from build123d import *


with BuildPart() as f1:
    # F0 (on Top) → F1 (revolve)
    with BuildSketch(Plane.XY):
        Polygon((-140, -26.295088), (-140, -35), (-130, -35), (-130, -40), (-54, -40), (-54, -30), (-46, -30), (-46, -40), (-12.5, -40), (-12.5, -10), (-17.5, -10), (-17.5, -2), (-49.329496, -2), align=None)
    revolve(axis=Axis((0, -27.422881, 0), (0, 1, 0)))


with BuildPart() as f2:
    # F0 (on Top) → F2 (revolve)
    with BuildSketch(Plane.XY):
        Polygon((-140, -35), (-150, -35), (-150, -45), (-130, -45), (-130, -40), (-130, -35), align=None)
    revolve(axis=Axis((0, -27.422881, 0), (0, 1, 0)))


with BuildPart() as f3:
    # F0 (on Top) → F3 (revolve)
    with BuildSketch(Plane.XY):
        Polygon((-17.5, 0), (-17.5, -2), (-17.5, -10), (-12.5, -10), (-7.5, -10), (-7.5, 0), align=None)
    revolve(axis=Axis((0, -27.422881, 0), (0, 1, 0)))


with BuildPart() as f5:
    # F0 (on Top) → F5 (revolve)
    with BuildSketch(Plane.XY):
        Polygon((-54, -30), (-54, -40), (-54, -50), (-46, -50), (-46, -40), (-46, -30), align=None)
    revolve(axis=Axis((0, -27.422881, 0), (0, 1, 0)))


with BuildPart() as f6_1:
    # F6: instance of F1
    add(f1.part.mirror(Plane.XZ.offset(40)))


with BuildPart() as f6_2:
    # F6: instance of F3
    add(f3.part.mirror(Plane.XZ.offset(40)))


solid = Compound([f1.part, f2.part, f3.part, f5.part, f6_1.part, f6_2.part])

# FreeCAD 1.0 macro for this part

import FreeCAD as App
import Part
import Sketcher
Q = App.Units.Quantity


def add_polygon(sketch, points):
    """Adds a closed chain of lines whose ends are joined by coincident constraints."""
    first, n = sketch.GeometryCount, len(points)
    for a, b in zip(points, points[1:] + points[:1]):
        sketch.addGeometry(Part.LineSegment(App.Vector(*a, 0), App.Vector(*b, 0)), False)
    for i in range(n):
        sketch.addConstraint(Sketcher.Constraint("Coincident", first + i, 2, first + (i + 1) % n, 1))

doc = App.newDocument("Part")
body = doc.addObject("PartDesign::Body", "Body")

# Sketch on XY plane
sketch1 = doc.addObject("Sketcher::SketchObject", "Sketch")
body.addObject(sketch1)
sketch1.AttachmentSupport = (doc.XY_Plane, [""])
sketch1.MapMode = "FlatFace"
add_polygon(sketch1, [(-140, -26), (-140, -35), (-130, -35), (-130, -40), (-54, -40), (-54, -30), (-46, -30), (-46, -40), (-12, -40), (-12, -10), (-18, -10), (-18, -2), (-49, -2)])  # lines 0-12
sketch1.addConstraint([
    Sketcher.Constraint("Vertical", 0),
    Sketcher.Constraint("Horizontal", 1),
    Sketcher.Constraint("Vertical", 2),
    Sketcher.Constraint("Horizontal", 3),
    Sketcher.Constraint("Vertical", 4),
    Sketcher.Constraint("Horizontal", 5),
    Sketcher.Constraint("Vertical", 6),
    Sketcher.Constraint("Horizontal", 7),
    Sketcher.Constraint("Vertical", 8),
    Sketcher.Constraint("Horizontal", 9),
    Sketcher.Constraint("Vertical", 10),
    Sketcher.Constraint("Horizontal", 11),
    Sketcher.Constraint("Horizontal", 3, 2, 6, 2),
    Sketcher.Constraint("Equal", 9, 2),
    Sketcher.Constraint("Equal", 1, 4),
    Sketcher.Constraint("Equal", 5, 10),
    Sketcher.Constraint("DistanceX", 1, 1, 1, 2, Q("10 mm")),
    Sketcher.Constraint("DistanceX", 3, 1, 3, 2, Q("76 mm")),
    Sketcher.Constraint("DistanceX", 5, 1, 5, 2, Q("8 mm")),
    Sketcher.Constraint("DistanceX", 9, 2, 9, 1, Q("5 mm")),
    Sketcher.Constraint("DistanceY", 8, 1, 8, 2, Q("30 mm")),
    Sketcher.Constraint("Angle", 12, Q("-165 deg")),
    Sketcher.Constraint("DistanceX", 7, 1, 7, 2, Q("33.5 mm")),
    Sketcher.Constraint("DistanceX", 0, 2, -1, 1, Q("140 mm")),
    Sketcher.Constraint("DistanceY", 0, 2, -1, 1, Q("35 mm")),
    Sketcher.Constraint("DistanceX", 11, 2, 11, 1, Q("31.829496 mm")),
])
revolution = doc.addObject("PartDesign::Revolution", "Revolution")
body.addObject(revolution)
revolution.Profile = sketch1
revolution.ReferenceAxis = (sketch1, ["V_Axis"])
revolution.Angle = 360
body2 = doc.addObject("PartDesign::Body", "Body001")

# Sketch on XY plane
sketch2 = doc.addObject("Sketcher::SketchObject", "Sketch001")
body2.addObject(sketch2)
sketch2.AttachmentSupport = (doc.getObject("XY_Plane001"), [""])
sketch2.MapMode = "FlatFace"
add_polygon(sketch2, [(-150, -35), (-150, -45), (-130, -45), (-130, -35)])  # lines 0-3
sketch2.addConstraint([
    Sketcher.Constraint("Vertical", 0),
    Sketcher.Constraint("Horizontal", 1),
    Sketcher.Constraint("Vertical", 2),
    Sketcher.Constraint("Horizontal", 3),
    Sketcher.Constraint("DistanceX", 1, 1, 1, 2, Q("20 mm")),
    Sketcher.Constraint("DistanceY", 0, 2, 0, 1, Q("10 mm")),
    Sketcher.Constraint("DistanceX", 0, 2, -1, 1, Q("150 mm")),
    Sketcher.Constraint("DistanceY", 0, 2, -1, 1, Q("45 mm")),
])
revolution2 = doc.addObject("PartDesign::Revolution", "Revolution001")
body2.addObject(revolution2)
revolution2.Profile = sketch2
revolution2.ReferenceAxis = (sketch2, ["V_Axis"])
revolution2.Angle = 360
body3 = doc.addObject("PartDesign::Body", "Body002")

# Sketch on XY plane
sketch3 = doc.addObject("Sketcher::SketchObject", "Sketch002")
body3.addObject(sketch3)
sketch3.AttachmentSupport = (doc.getObject("XY_Plane002"), [""])
sketch3.MapMode = "FlatFace"
add_polygon(sketch3, [(-18, 0), (-18, -10), (-8, -10), (-8, 0)])  # lines 0-3
sketch3.addConstraint([
    Sketcher.Constraint("Vertical", 0),
    Sketcher.Constraint("Horizontal", 1),
    Sketcher.Constraint("Vertical", 2),
    Sketcher.Constraint("Horizontal", 3),
    Sketcher.Constraint("PointOnObject", 2, 2, -1),
    Sketcher.Constraint("Equal", 3, 0),
    Sketcher.Constraint("DistanceX", 1, 1, 1, 2, Q("10 mm")),
    Sketcher.Constraint("DistanceX", 0, 2, -1, 1, Q("17.5 mm")),
])
revolution3 = doc.addObject("PartDesign::Revolution", "Revolution002")
body3.addObject(revolution3)
revolution3.Profile = sketch3
revolution3.ReferenceAxis = (sketch3, ["V_Axis"])
revolution3.Angle = 360
body4 = doc.addObject("PartDesign::Body", "Body003")

# Sketch on XY plane
sketch4 = doc.addObject("Sketcher::SketchObject", "Sketch003")
body4.addObject(sketch4)
sketch4.AttachmentSupport = (doc.getObject("XY_Plane003"), [""])
sketch4.MapMode = "FlatFace"
add_polygon(sketch4, [(-54, -30), (-54, -50), (-46, -50), (-46, -30)])  # lines 0-3
sketch4.addConstraint([
    Sketcher.Constraint("Vertical", 0),
    Sketcher.Constraint("Horizontal", 1),
    Sketcher.Constraint("Vertical", 2),
    Sketcher.Constraint("Horizontal", 3),
    Sketcher.Constraint("DistanceX", 1, 1, 1, 2, Q("8 mm")),
    Sketcher.Constraint("DistanceY", 0, 2, 0, 1, Q("20 mm")),
    Sketcher.Constraint("DistanceX", 0, 2, -1, 1, Q("54 mm")),
    Sketcher.Constraint("DistanceY", 0, 2, -1, 1, Q("50 mm")),
])
revolution4 = doc.addObject("PartDesign::Revolution", "Revolution003")
body4.addObject(revolution4)
revolution4.Profile = sketch4
revolution4.ReferenceAxis = (sketch4, ["V_Axis"])
revolution4.Angle = 360
body5 = doc.addObject("PartDesign::Body", "Body004")
doc.recompute()

mirroring = doc.addObject("Part::Mirroring", "Mirroring")
mirroring.Source = body
mirroring.Base = App.Vector(0, -40, 0)
mirroring.Normal = App.Vector(0, -1, 0)
body5.BaseFeature = mirroring
doc.recompute()
body6 = doc.addObject("PartDesign::Body", "Body005")
doc.recompute()

mirroring2 = doc.addObject("Part::Mirroring", "Mirroring001")
mirroring2.Source = body3
mirroring2.Base = App.Vector(0, -40, 0)
mirroring2.Normal = App.Vector(0, -1, 0)
body6.BaseFeature = mirroring2
doc.recompute()
mirroring.Visibility = False
mirroring2.Visibility = False

doc.recompute()
